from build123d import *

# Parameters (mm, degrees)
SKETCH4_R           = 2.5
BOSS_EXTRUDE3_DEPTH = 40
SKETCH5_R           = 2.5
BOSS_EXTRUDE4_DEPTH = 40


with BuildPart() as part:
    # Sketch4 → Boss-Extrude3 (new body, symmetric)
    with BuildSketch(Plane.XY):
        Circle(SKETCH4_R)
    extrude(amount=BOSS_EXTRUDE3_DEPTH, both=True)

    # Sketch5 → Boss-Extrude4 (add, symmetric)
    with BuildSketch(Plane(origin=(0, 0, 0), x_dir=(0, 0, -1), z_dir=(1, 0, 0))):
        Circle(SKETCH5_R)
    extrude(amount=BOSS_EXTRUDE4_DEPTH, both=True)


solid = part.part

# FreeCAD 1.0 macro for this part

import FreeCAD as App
import Part
import Sketcher
Q = App.Units.Quantity

doc = App.newDocument("Part")
params = doc.addObject("Spreadsheet::Sheet", "Params")
for row, (alias, value) in enumerate([
    ("sketch1_diameter", "5 mm"),
    ("pad1_length", "80 mm"),
    ("sketch2_diameter", "5 mm"),
    ("pad2_length", "80 mm"),
], start=1):
    params.set(f"A{row}", alias)
    params.set(f"B{row}", "=" + value)
    params.setAlias(f"B{row}", alias)

body = doc.addObject("PartDesign::Body", "Body")

# Sketch on XY plane
sketch1 = body.newObject("Sketcher::SketchObject", "Sketch")
sketch1.AttachmentSupport = (doc.getObject("XY_Plane"), [""])
sketch1.MapMode = "FlatFace"
sketch1.addGeometry(Part.Circle(App.Vector(0, 0, 0), App.Vector(0, 0, 1), 2.5), False)
sketch1.addConstraint(Sketcher.Constraint("Coincident", 0, 3, -1, 1))
sketch1.addConstraint(Sketcher.Constraint("Diameter", 0, Q("5 mm")))
sketch1.setExpression("Constraints[1]", "Params.sketch1_diameter")
pad1 = body.newObject("PartDesign::Pad", "Pad")
pad1.Profile = sketch1
pad1.setExpression("Length", "Params.pad1_length")
pad1.Midplane = True

# Sketch on YZ plane
sketch2 = body.newObject("Sketcher::SketchObject", "Sketch001")
sketch2.AttachmentSupport = (doc.getObject("YZ_Plane"), [""])
sketch2.MapMode = "FlatFace"
sketch2.addGeometry(Part.Circle(App.Vector(0, 0, 0), App.Vector(0, 0, 1), 2.5), False)
sketch2.addConstraint(Sketcher.Constraint("Coincident", 0, 3, -1, 1))
sketch2.addConstraint(Sketcher.Constraint("Diameter", 0, Q("5 mm")))
sketch2.setExpression("Constraints[1]", "Params.sketch2_diameter")
pad2 = body.newObject("PartDesign::Pad", "Pad001")
pad2.Profile = sketch2
pad2.setExpression("Length", "Params.pad2_length")
pad2.Midplane = True

doc.recompute()
